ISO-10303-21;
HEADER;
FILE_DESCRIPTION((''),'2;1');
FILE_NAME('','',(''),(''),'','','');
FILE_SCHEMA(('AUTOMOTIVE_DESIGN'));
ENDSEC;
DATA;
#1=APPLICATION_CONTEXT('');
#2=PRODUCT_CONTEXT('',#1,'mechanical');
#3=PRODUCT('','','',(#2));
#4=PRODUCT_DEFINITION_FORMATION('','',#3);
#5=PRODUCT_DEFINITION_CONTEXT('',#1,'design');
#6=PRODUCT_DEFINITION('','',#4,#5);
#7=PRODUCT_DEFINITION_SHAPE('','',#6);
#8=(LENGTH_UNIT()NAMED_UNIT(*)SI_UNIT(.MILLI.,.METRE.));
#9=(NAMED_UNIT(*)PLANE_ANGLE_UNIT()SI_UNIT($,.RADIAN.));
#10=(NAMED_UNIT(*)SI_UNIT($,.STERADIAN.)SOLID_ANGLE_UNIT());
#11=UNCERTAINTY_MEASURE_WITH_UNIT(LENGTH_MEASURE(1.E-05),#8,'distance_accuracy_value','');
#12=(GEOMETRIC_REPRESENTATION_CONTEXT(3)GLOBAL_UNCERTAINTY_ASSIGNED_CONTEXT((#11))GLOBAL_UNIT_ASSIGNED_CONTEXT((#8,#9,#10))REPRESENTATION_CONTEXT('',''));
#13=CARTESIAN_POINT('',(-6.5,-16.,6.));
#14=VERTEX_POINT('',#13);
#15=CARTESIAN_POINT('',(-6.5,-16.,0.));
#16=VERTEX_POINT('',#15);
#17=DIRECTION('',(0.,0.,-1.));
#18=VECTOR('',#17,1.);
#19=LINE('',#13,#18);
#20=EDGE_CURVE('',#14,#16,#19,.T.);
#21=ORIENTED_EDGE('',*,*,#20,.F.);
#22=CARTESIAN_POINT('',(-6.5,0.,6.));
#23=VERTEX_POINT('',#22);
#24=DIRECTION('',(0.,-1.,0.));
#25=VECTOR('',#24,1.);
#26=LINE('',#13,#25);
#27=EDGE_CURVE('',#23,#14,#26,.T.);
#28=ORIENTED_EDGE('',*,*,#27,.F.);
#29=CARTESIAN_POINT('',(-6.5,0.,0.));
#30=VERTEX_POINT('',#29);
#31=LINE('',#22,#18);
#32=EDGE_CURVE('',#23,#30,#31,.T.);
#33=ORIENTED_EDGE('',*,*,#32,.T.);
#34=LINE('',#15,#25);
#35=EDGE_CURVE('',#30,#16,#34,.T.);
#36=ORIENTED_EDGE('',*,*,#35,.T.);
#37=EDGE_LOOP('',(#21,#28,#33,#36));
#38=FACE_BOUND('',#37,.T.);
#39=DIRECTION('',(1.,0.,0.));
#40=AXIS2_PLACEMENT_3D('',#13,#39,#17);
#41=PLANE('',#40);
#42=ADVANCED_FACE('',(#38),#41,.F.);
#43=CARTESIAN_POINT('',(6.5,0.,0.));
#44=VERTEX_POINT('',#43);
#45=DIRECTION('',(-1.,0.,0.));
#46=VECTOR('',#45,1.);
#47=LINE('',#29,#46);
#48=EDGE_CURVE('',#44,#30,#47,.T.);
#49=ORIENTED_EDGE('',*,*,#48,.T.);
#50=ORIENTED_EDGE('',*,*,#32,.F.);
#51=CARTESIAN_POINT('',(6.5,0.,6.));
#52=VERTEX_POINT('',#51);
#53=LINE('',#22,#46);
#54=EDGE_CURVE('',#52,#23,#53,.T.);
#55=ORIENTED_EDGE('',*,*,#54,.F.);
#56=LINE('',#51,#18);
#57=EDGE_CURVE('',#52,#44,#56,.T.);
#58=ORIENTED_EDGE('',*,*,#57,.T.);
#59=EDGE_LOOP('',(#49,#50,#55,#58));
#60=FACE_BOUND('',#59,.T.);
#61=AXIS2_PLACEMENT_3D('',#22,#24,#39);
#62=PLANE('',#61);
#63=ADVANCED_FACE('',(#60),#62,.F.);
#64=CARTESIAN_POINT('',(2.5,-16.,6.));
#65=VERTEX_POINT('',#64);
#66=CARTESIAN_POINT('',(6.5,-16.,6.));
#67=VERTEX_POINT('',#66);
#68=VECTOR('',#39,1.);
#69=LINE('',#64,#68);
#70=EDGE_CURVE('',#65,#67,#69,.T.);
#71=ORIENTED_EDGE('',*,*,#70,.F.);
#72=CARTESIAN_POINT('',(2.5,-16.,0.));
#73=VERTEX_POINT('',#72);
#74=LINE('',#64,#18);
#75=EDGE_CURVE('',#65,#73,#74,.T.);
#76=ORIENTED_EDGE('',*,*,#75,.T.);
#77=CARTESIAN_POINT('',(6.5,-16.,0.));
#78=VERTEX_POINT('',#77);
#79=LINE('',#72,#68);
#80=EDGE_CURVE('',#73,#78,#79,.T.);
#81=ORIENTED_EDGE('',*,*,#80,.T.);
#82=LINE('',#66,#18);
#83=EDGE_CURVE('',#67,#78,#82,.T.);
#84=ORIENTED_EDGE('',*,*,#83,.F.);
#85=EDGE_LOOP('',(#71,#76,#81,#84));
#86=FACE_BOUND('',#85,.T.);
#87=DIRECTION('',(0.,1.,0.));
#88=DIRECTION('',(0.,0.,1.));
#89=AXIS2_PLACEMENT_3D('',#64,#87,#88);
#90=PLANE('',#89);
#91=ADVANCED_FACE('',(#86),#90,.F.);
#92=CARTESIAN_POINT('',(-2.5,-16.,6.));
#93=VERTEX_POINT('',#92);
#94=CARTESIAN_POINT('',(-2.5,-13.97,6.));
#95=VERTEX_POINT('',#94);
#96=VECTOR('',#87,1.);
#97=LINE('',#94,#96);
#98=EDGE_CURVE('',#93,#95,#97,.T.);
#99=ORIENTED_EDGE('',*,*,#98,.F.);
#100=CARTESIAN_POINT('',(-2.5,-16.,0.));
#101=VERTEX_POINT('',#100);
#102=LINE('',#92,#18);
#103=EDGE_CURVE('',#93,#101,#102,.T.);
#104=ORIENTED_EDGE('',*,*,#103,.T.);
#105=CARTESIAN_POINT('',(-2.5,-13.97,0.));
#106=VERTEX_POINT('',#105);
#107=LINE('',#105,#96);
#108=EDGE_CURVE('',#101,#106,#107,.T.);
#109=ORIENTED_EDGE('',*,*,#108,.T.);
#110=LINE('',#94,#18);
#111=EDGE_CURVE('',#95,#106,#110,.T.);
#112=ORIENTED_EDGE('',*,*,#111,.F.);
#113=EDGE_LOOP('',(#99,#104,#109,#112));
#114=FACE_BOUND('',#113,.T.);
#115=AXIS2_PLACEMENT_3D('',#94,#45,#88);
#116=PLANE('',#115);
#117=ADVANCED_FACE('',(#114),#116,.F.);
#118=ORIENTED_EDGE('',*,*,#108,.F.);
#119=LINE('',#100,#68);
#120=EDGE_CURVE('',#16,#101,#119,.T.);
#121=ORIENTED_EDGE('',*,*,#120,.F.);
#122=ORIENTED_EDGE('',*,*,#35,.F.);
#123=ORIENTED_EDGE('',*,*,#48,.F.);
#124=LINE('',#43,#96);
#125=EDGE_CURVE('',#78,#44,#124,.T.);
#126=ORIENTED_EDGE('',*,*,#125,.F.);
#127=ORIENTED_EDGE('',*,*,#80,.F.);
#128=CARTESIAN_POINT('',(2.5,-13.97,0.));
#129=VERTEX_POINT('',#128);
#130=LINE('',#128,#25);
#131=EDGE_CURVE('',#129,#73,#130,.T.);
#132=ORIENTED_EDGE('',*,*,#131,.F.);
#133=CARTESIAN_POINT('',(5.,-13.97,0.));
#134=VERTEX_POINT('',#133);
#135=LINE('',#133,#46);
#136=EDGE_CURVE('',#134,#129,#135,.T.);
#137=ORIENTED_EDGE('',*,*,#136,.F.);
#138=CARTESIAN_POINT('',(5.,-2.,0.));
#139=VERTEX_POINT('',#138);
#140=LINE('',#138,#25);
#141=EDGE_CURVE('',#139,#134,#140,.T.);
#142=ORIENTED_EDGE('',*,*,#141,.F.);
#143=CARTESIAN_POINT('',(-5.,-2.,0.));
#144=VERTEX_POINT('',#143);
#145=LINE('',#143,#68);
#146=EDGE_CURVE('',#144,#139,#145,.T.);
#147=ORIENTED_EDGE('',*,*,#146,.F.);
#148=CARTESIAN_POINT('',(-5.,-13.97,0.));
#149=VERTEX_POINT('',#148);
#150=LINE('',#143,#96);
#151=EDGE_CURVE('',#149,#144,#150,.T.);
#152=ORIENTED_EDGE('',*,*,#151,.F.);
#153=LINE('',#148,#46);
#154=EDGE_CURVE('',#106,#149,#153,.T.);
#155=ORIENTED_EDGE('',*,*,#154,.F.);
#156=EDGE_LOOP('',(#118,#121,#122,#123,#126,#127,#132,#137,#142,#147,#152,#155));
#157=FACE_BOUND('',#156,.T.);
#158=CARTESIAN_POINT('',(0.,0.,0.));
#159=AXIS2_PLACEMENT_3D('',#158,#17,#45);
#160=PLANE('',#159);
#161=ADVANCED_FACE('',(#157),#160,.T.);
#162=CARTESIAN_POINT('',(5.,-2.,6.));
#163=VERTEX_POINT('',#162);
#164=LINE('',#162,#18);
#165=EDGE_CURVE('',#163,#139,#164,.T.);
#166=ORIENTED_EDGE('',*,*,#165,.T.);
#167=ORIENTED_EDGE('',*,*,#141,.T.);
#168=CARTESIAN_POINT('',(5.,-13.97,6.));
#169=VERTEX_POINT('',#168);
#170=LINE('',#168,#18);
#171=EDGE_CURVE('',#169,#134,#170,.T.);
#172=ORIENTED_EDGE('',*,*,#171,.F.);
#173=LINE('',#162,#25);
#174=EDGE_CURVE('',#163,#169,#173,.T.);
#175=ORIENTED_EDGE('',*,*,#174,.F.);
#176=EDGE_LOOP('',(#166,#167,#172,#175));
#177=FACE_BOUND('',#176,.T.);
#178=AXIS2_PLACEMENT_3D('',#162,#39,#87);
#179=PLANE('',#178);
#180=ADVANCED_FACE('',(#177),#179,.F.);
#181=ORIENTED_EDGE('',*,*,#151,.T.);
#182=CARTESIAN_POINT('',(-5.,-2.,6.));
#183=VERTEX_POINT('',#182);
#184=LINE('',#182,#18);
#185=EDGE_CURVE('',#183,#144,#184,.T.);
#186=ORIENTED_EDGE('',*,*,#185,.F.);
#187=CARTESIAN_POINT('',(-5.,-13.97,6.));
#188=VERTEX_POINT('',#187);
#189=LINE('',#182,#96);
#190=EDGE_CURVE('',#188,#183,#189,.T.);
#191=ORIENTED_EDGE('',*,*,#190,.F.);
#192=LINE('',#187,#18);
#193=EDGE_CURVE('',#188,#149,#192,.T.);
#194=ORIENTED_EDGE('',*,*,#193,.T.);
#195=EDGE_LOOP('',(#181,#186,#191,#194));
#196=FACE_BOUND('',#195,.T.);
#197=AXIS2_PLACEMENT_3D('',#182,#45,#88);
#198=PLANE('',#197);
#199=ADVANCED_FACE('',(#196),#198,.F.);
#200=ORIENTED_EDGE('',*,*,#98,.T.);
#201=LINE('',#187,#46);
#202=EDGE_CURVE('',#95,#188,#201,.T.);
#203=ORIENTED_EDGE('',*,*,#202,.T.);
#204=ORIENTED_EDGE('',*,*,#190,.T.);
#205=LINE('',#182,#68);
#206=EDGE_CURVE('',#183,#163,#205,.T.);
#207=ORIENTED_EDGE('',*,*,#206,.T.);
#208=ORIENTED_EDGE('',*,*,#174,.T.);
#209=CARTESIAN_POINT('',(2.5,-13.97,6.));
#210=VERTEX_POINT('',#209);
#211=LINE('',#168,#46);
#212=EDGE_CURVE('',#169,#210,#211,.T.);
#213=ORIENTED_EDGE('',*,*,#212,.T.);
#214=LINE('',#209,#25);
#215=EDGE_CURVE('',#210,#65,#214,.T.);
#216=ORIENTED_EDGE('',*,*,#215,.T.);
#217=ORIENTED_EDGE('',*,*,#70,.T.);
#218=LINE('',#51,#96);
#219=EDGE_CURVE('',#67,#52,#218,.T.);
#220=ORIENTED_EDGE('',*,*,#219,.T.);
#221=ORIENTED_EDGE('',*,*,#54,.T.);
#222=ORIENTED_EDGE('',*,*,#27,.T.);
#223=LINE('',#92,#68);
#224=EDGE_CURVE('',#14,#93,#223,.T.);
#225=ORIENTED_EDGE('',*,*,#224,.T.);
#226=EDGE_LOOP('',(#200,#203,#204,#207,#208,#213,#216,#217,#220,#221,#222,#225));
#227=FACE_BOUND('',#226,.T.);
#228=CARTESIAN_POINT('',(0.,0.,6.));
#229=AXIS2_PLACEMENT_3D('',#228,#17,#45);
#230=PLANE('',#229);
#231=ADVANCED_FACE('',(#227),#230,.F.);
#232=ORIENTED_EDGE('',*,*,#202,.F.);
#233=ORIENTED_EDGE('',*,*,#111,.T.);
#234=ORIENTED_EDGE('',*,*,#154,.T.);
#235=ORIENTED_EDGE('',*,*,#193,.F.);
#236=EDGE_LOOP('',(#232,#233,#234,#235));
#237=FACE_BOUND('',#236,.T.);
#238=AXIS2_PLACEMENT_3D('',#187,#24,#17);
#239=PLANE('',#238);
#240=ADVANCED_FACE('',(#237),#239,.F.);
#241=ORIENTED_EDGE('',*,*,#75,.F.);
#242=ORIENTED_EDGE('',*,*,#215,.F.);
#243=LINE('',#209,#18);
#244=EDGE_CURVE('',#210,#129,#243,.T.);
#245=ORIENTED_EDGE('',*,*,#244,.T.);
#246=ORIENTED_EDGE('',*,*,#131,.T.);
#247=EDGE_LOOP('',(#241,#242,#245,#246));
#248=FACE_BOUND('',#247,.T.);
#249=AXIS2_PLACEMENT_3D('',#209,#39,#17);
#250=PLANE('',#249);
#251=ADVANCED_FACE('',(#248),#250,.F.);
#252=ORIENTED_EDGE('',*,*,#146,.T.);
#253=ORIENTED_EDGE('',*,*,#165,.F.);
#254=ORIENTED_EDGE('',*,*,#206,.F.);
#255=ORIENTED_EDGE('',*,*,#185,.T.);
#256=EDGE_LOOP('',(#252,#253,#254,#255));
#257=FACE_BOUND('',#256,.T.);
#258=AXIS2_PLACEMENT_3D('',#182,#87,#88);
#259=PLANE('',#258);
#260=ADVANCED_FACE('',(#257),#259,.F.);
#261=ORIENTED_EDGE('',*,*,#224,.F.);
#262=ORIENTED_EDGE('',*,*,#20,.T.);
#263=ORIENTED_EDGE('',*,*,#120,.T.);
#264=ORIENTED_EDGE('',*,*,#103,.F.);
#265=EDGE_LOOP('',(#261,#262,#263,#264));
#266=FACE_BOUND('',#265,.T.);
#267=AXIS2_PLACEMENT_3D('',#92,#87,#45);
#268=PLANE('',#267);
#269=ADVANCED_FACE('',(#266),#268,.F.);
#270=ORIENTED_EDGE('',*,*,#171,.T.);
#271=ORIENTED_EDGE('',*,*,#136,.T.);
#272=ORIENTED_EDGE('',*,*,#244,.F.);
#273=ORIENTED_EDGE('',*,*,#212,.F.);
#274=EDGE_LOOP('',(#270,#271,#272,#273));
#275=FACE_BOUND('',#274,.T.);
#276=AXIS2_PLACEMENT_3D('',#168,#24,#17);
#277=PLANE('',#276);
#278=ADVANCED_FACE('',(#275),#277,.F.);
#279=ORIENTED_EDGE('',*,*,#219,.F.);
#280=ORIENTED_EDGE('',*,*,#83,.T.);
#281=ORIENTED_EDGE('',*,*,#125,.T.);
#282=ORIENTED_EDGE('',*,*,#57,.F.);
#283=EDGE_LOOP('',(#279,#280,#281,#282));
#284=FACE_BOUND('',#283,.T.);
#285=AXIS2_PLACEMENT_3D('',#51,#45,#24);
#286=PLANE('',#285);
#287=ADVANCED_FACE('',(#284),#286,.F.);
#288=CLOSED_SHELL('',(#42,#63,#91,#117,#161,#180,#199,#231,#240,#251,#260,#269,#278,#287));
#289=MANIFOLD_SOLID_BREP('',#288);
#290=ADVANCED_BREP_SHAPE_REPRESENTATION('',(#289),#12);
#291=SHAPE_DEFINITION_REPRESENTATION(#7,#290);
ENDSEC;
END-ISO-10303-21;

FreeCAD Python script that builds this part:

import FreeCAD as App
import Part
import Sketcher


def add_polygon(sketch, points):
    """Adds a closed chain of lines whose ends are joined by coincident constraints."""
    first, n = sketch.GeometryCount, len(points)
    for a, b in zip(points, points[1:] + points[:1]):
        sketch.addGeometry(Part.LineSegment(App.Vector(*a, 0), App.Vector(*b, 0)), False)
    for i in range(n):
        sketch.addConstraint(Sketcher.Constraint("Coincident", first + i, 2, first + (i + 1) % n, 1))

doc = App.newDocument("Part")
params = doc.addObject("Spreadsheet::Sheet", "Params")
for row, (alias, value) in enumerate([
    ("sketch1_width", "10 mm"),
    ("sketch1_width2", "4 mm"),
    ("sketch1_width3", "13 mm"),
    ("sketch1_height", "16 mm"),
    ("sketch1_height2", "11.97 mm"),
    ("pad1_length", "6 mm"),
], start=1):
    params.set(f"A{row}", alias)
    params.set(f"B{row}", "=" + value)
    params.setAlias(f"B{row}", alias)

body = doc.addObject("PartDesign::Body", "Body")

# Sketch on XY plane
sketch1 = body.newObject("Sketcher::SketchObject", "Sketch")
sketch1.AttachmentSupport = (doc.getObject("XY_Plane"), [""])
sketch1.MapMode = "FlatFace"
add_polygon(sketch1, [(-5, -13.97), (-5, -2), (5, -2), (5, -13.97), (2.5, -13.97), (2.5, -16), (6.5, -16), (6.5, 0), (-6.5, 0), (-6.5, -16), (-2.5, -16), (-2.5, -13.97)])  # lines 0-11
sketch1.addConstraint([
    Sketcher.Constraint("Vertical", 0),
    Sketcher.Constraint("Horizontal", 1),
    Sketcher.Constraint("Vertical", 2),
    Sketcher.Constraint("Horizontal", 3),
    Sketcher.Constraint("Vertical", 4),
    Sketcher.Constraint("Horizontal", 5),
    Sketcher.Constraint("Vertical", 6),
    Sketcher.Constraint("Horizontal", 7),
    Sketcher.Constraint("Vertical", 8),
    Sketcher.Constraint("Horizontal", 9),
    Sketcher.Constraint("Vertical", 10),
    Sketcher.Constraint("Horizontal", 11),
    Sketcher.Constraint("Symmetric", 6, 2, 7, 2, -1, 1),
    Sketcher.Constraint("Symmetric", 4, 2, 9, 2, -2),
    Sketcher.Constraint("Symmetric", 2, 2, 11, 2, -2),
    Sketcher.Constraint("DistanceX", 1, 1, 1, 2, 10.0),
    Sketcher.Constraint("DistanceX", 5, 1, 5, 2, 4.0),
    Sketcher.Constraint("DistanceX", 7, 2, 7, 1, 13.0),
    Sketcher.Constraint("DistanceY", 6, 1, 6, 2, 16.0),
    Sketcher.Constraint("DistanceY", 0, 2, -1, 1, 2.0),
    Sketcher.Constraint("DistanceY", 0, 1, 0, 2, 11.97),
])
sketch1.setExpression("Constraints[27]", "Params.sketch1_width")
sketch1.setExpression("Constraints[28]", "Params.sketch1_width2")
sketch1.setExpression("Constraints[29]", "Params.sketch1_width3")
sketch1.setExpression("Constraints[30]", "Params.sketch1_height")
sketch1.setExpression("Constraints[32]", "Params.sketch1_height2")
pad1 = body.newObject("PartDesign::Pad", "Pad")
pad1.Profile = sketch1
pad1.setExpression("Length", "Params.pad1_length")

doc.recompute()
